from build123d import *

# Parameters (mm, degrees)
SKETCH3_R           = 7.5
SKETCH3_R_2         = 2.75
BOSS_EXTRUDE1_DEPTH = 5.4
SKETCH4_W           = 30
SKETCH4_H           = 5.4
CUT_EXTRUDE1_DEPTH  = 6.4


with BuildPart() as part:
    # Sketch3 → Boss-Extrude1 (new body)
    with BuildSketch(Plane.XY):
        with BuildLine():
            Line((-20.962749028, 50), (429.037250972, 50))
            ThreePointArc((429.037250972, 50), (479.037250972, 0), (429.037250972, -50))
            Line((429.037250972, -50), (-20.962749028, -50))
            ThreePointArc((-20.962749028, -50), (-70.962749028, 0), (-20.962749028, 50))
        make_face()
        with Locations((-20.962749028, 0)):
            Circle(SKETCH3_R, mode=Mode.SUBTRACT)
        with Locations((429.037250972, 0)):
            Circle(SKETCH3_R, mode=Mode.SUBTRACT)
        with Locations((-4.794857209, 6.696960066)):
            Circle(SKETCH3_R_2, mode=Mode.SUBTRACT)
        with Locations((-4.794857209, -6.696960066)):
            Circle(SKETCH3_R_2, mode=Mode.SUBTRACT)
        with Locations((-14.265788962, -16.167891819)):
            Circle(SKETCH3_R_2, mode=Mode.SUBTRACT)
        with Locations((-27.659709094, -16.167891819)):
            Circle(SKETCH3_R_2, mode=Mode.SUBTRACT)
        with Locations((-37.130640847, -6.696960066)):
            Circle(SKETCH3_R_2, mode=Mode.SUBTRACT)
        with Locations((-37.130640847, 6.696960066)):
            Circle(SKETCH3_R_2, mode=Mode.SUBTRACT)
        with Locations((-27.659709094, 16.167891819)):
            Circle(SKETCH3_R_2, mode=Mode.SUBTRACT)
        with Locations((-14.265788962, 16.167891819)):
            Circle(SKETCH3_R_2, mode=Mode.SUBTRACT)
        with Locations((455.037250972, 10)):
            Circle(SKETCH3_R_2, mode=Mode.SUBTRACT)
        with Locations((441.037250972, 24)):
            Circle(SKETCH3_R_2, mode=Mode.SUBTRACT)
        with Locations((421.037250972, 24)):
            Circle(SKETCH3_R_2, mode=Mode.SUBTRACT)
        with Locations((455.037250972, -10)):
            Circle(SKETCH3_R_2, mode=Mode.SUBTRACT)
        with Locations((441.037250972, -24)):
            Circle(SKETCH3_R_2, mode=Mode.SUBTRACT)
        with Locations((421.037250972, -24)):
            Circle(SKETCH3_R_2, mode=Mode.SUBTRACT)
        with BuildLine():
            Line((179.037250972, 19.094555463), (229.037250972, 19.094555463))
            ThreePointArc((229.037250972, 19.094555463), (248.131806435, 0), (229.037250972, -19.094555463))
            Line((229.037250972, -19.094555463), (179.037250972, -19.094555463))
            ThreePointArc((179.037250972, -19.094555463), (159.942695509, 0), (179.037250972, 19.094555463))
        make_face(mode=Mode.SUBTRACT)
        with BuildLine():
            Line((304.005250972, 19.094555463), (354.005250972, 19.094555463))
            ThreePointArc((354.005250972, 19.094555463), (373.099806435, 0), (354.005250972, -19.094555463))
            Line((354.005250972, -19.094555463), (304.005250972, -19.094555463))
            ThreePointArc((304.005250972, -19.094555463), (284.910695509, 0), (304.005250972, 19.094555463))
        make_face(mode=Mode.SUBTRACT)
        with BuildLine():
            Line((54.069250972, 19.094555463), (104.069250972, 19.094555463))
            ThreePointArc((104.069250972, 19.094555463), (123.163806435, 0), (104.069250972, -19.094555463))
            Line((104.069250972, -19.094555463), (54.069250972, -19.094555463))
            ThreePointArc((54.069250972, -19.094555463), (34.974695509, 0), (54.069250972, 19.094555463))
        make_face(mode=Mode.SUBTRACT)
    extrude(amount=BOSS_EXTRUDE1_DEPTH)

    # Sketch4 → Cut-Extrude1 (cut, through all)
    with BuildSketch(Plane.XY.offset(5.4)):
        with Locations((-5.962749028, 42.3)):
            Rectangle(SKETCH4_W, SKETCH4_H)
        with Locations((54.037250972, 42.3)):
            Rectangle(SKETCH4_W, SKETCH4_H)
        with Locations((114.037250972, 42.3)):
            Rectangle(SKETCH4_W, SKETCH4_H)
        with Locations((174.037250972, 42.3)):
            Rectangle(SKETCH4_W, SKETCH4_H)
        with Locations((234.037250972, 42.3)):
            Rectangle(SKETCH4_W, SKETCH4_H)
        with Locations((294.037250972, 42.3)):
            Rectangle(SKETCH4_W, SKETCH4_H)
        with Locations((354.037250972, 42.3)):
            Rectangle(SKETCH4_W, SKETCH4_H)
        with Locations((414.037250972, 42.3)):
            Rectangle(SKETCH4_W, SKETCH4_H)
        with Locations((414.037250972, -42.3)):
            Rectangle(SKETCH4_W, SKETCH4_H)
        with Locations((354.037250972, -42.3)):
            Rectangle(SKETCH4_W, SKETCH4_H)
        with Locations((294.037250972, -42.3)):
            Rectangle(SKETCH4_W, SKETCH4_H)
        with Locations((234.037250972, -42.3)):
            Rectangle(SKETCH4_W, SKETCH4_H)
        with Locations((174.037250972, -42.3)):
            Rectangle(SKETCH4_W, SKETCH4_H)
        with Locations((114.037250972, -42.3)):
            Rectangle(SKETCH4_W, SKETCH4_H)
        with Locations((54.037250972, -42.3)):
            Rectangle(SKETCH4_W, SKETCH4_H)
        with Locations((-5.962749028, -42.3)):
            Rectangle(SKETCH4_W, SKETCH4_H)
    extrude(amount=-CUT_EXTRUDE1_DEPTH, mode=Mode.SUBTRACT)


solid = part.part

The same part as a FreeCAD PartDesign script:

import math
import FreeCAD as App
import Part
import Sketcher

V = App.Vector


def add_polygon(sketch, points):
    """Adds a closed chain of lines whose ends are joined by coincident constraints."""
    first, n = sketch.GeometryCount, len(points)
    for a, b in zip(points, points[1:] + points[:1]):
        sketch.addGeometry(Part.LineSegment(App.Vector(*a, 0), App.Vector(*b, 0)), False)
    for i in range(n):
        sketch.addConstraint(Sketcher.Constraint("Coincident", first + i, 2, first + (i + 1) % n, 1))

doc = App.newDocument("Part")
body = doc.addObject("PartDesign::Body", "Body")

# Sketch on XY plane
sketch1 = body.newObject("Sketcher::SketchObject", "Sketch")
sketch1.AttachmentSupport = (doc.getObject("XY_Plane"), [""])
sketch1.MapMode = "FlatFace"
sketch1.addGeometry(Part.LineSegment(V(429, 50, 0), V(-21, 50, 0)), False)
sketch1.addGeometry(Part.ArcOfCircle(Part.Circle(V(-21, 0, 0), V(0, 0, 1), 50), math.radians(90), math.radians(270)), False)
sketch1.addGeometry(Part.LineSegment(V(-21, -50, 0), V(429, -50, 0)), False)
sketch1.addGeometry(Part.ArcOfCircle(Part.Circle(V(429, 0, 0), V(0, 0, 1), 50), math.radians(-90), math.radians(90)), False)
sketch1.addGeometry(Part.Circle(V(441, -24, 0), V(0, 0, 1), 2.8), False)
sketch1.addGeometry(Part.Circle(V(421, -24, 0), V(0, 0, 1), 2.8), False)
sketch1.addGeometry(Part.Circle(V(455, -10, 0), V(0, 0, 1), 2.8), False)
sketch1.addGeometry(Part.Circle(V(429, 0, 0), V(0, 0, 1), 7.5), False)
sketch1.addGeometry(Part.LineSegment(V(304, 19.1, 0), V(354, 19.1, 0)), False)
sketch1.addGeometry(Part.ArcOfCircle(Part.Circle(V(354, 0, 0), V(0, 0, 1), 19.1), math.radians(-90), math.radians(90)), False)
sketch1.addGeometry(Part.LineSegment(V(354, -19.1, 0), V(304, -19.1, 0)), False)
sketch1.addGeometry(Part.ArcOfCircle(Part.Circle(V(304, 0, 0), V(0, 0, 1), 19.1), math.radians(90), math.radians(270)), False)
sketch1.addGeometry(Part.Circle(V(-14.3, -16.2, 0), V(0, 0, 1), 2.8), False)
sketch1.addGeometry(Part.Circle(V(-27.7, -16.2, 0), V(0, 0, 1), 2.8), False)
sketch1.addGeometry(Part.LineSegment(V(179, 19.1, 0), V(229, 19.1, 0)), False)
sketch1.addGeometry(Part.ArcOfCircle(Part.Circle(V(229, 0, 0), V(0, 0, 1), 19.1), math.radians(-90), math.radians(90)), False)
sketch1.addGeometry(Part.LineSegment(V(229, -19.1, 0), V(179, -19.1, 0)), False)
sketch1.addGeometry(Part.ArcOfCircle(Part.Circle(V(179, 0, 0), V(0, 0, 1), 19.1), math.radians(90), math.radians(270)), False)
sketch1.addGeometry(Part.Circle(V(-4.8, -6.7, 0), V(0, 0, 1), 2.8), False)
sketch1.addGeometry(Part.Circle(V(-37.1, -6.7, 0), V(0, 0, 1), 2.8), False)
sketch1.addGeometry(Part.LineSegment(V(54.1, 19.1, 0), V(104.1, 19.1, 0)), False)
sketch1.addGeometry(Part.ArcOfCircle(Part.Circle(V(104.1, 0, 0), V(0, 0, 1), 19.1), math.radians(-90), math.radians(90)), False)
sketch1.addGeometry(Part.LineSegment(V(104.1, -19.1, 0), V(54.1, -19.1, 0)), False)
sketch1.addGeometry(Part.ArcOfCircle(Part.Circle(V(54.1, 0, 0), V(0, 0, 1), 19.1), math.radians(90), math.radians(270)), False)
sketch1.addGeometry(Part.Circle(V(-21, 0, 0), V(0, 0, 1), 7.5), False)
sketch1.addGeometry(Part.Circle(V(455, 10, 0), V(0, 0, 1), 2.8), False)
sketch1.addGeometry(Part.Circle(V(441, 24, 0), V(0, 0, 1), 2.8), False)
sketch1.addGeometry(Part.Circle(V(421, 24, 0), V(0, 0, 1), 2.8), False)
sketch1.addGeometry(Part.Circle(V(-4.8, 6.7, 0), V(0, 0, 1), 2.8), False)
sketch1.addGeometry(Part.Circle(V(-37.1, 6.7, 0), V(0, 0, 1), 2.8), False)
sketch1.addGeometry(Part.Circle(V(-14.3, 16.2, 0), V(0, 0, 1), 2.8), False)
sketch1.addGeometry(Part.Circle(V(-27.7, 16.2, 0), V(0, 0, 1), 2.8), False)
sketch1.addConstraint(Sketcher.Constraint("Tangent", 0, 2, 1, 1))
sketch1.addConstraint(Sketcher.Constraint("Tangent", 1, 2, 2, 1))
sketch1.addConstraint(Sketcher.Constraint("Tangent", 2, 2, 3, 1))
sketch1.addConstraint(Sketcher.Constraint("Tangent", 3, 2, 0, 1))
sketch1.addConstraint(Sketcher.Constraint("Tangent", 8, 2, 9, 2))
sketch1.addConstraint(Sketcher.Constraint("Tangent", 9, 1, 10, 1))
sketch1.addConstraint(Sketcher.Constraint("Tangent", 10, 2, 11, 2))
sketch1.addConstraint(Sketcher.Constraint("Tangent", 11, 1, 8, 1))
sketch1.addConstraint(Sketcher.Constraint("Tangent", 14, 2, 15, 2))
sketch1.addConstraint(Sketcher.Constraint("Tangent", 15, 1, 16, 1))
sketch1.addConstraint(Sketcher.Constraint("Tangent", 16, 2, 17, 2))
sketch1.addConstraint(Sketcher.Constraint("Tangent", 17, 1, 14, 1))
sketch1.addConstraint(Sketcher.Constraint("Tangent", 20, 2, 21, 2))
sketch1.addConstraint(Sketcher.Constraint("Tangent", 21, 1, 22, 1))
sketch1.addConstraint(Sketcher.Constraint("Tangent", 22, 2, 23, 2))
sketch1.addConstraint(Sketcher.Constraint("Tangent", 23, 1, 20, 1))
sketch1.addConstraint(Sketcher.Constraint("Horizontal", 0))
sketch1.addConstraint(Sketcher.Constraint("Horizontal", 2))
sketch1.addConstraint(Sketcher.Constraint("Horizontal", 8))
sketch1.addConstraint(Sketcher.Constraint("Horizontal", 10))
sketch1.addConstraint(Sketcher.Constraint("Horizontal", 14))
sketch1.addConstraint(Sketcher.Constraint("Horizontal", 16))
sketch1.addConstraint(Sketcher.Constraint("Horizontal", 20))
sketch1.addConstraint(Sketcher.Constraint("Horizontal", 22))
sketch1.addConstraint(Sketcher.Constraint("Coincident", 7, 3, 3, 3))
sketch1.addConstraint(Sketcher.Constraint("Coincident", 24, 3, 1, 3))
sketch1.addConstraint(Sketcher.Constraint("Equal", 4, 5))
sketch1.addConstraint(Sketcher.Constraint("Equal", 5, 6))
sketch1.addConstraint(Sketcher.Constraint("Equal", 6, 12))
sketch1.addConstraint(Sketcher.Constraint("Equal", 12, 13))
sketch1.addConstraint(Sketcher.Constraint("Equal", 11, 15))
sketch1.addConstraint(Sketcher.Constraint("Equal", 13, 18))
sketch1.addConstraint(Sketcher.Constraint("Equal", 18, 19))
sketch1.addConstraint(Sketcher.Constraint("Equal", 17, 21))
sketch1.addConstraint(Sketcher.Constraint("Equal", 7, 24))
sketch1.addConstraint(Sketcher.Constraint("Equal", 19, 25))
sketch1.addConstraint(Sketcher.Constraint("Equal", 25, 26))
sketch1.addConstraint(Sketcher.Constraint("Equal", 26, 27))
sketch1.addConstraint(Sketcher.Constraint("Equal", 27, 28))
sketch1.addConstraint(Sketcher.Constraint("Equal", 28, 29))
sketch1.addConstraint(Sketcher.Constraint("Equal", 29, 30))
sketch1.addConstraint(Sketcher.Constraint("Equal", 30, 31))
sketch1.addConstraint(Sketcher.Constraint("Symmetric", 6, 3, 25, 3, -1))
sketch1.addConstraint(Sketcher.Constraint("Symmetric", 4, 3, 26, 3, -1))
sketch1.addConstraint(Sketcher.Constraint("Symmetric", 5, 3, 27, 3, -1))
sketch1.addConstraint(Sketcher.Constraint("Symmetric", 18, 3, 28, 3, -1))
sketch1.addConstraint(Sketcher.Constraint("Symmetric", 19, 3, 29, 3, -1))
sketch1.addConstraint(Sketcher.Constraint("Symmetric", 12, 3, 30, 3, -1))
sketch1.addConstraint(Sketcher.Constraint("Symmetric", 13, 3, 31, 3, -1))
sketch1.addConstraint(Sketcher.Constraint("PointOnObject", 1, 3, -1))
sketch1.addConstraint(Sketcher.Constraint("PointOnObject", 9, 3, -1))
sketch1.addConstraint(Sketcher.Constraint("PointOnObject", 15, 3, -1))
sketch1.addConstraint(Sketcher.Constraint("PointOnObject", 21, 3, -1))
sketch1.addConstraint(Sketcher.Constraint("Horizontal", 4, 3, 5, 3))
sketch1.addConstraint(Sketcher.Constraint("Horizontal", 12, 3, 13, 3))
sketch1.addConstraint(Sketcher.Constraint("Horizontal", 18, 3, 19, 3))
sketch1.addConstraint(Sketcher.Constraint("Equal", 10, 14))
sketch1.addConstraint(Sketcher.Constraint("Equal", 16, 20))
sketch1.addConstraint(Sketcher.Constraint("Diameter", 7, 15.0))
sketch1.addConstraint(Sketcher.Constraint("Radius", 1, 50.0))
sketch1.addConstraint(Sketcher.Constraint("Diameter", 4, 5.5))
sketch1.addConstraint(Sketcher.Constraint("DistanceX", 0, 2, 0, 1, 450.0))
sketch1.addConstraint(Sketcher.Constraint("DistanceX", 8, 1, 8, 2, 50.0))
sketch1.addConstraint(Sketcher.Constraint("DistanceY", 4, 3, -1, 1, 24.0))
sketch1.addConstraint(Sketcher.Constraint("DistanceY", 6, 3, -1, 1, 10.0))
sketch1.addConstraint(Sketcher.Constraint("DistanceX", 3, 3, 4, 3, 12.0))
sketch1.addConstraint(Sketcher.Constraint("DistanceX", 5, 3, 4, 3, 20.0))
sketch1.addConstraint(Sketcher.Constraint("DistanceX", 4, 3, 6, 3, 14.0))
sketch1.addConstraint(Sketcher.Constraint("DistanceX", 15, 3, 5, 3, 192.0))
sketch1.addConstraint(Sketcher.Constraint("Radius", 9, 19.094555))
sketch1.addConstraint(Sketcher.Constraint("DistanceX", 9, 3, 5, 3, 67.032))
sketch1.addConstraint(Sketcher.Constraint("DistanceX", 21, 3, 17, 3, 74.968))
sketch1.addConstraint(Sketcher.Constraint("DistanceX", 1, 3, -1, 1, 20.962749))
sketch1.addConstraint(Sketcher.Constraint("DistanceX", 12, 3, -1, 1, 14.265789))
sketch1.addConstraint(Sketcher.Constraint("DistanceY", 12, 3, -1, 1, 16.167892))
sketch1.addConstraint(Sketcher.Constraint("DistanceX", 13, 3, -1, 1, 27.659709))
sketch1.addConstraint(Sketcher.Constraint("DistanceY", 18, 3, -1, 1, 6.69696))
sketch1.addConstraint(Sketcher.Constraint("DistanceX", 19, 3, -1, 1, 37.130641))
sketch1.addConstraint(Sketcher.Constraint("DistanceX", 12, 3, 18, 3, 9.470932))
pad1 = body.newObject("PartDesign::Pad", "Pad")
pad1.Profile = sketch1
pad1.Length = 5.4

# Sketch on XY plane
sketch2 = body.newObject("Sketcher::SketchObject", "Sketch001")
sketch2.AttachmentSupport = (doc.getObject("XY_Plane"), [""])
sketch2.MapMode = "FlatFace"
sketch2.AttachmentOffset = App.Placement(V(0, 0, 5.4), App.Rotation())
add_polygon(sketch2, [(-21, 45), (-21, 40), (9, 40), (9, 45)])  # lines 0-3
add_polygon(sketch2, [(39, 45), (39, 40), (69, 40), (69, 45)])  # lines 4-7
add_polygon(sketch2, [(99, 45), (99, 40), (129, 40), (129, 45)])  # lines 8-11
add_polygon(sketch2, [(159, 45), (159, 40), (189, 40), (189, 45)])  # lines 12-15
add_polygon(sketch2, [(219, 45), (219, 40), (249, 40), (249, 45)])  # lines 16-19
add_polygon(sketch2, [(279, 45), (279, 40), (309, 40), (309, 45)])  # lines 20-23
add_polygon(sketch2, [(339, 45), (339, 40), (369, 40), (369, 45)])  # lines 24-27
add_polygon(sketch2, [(399, 45), (399, 40), (429, 40), (429, 45)])  # lines 28-31
add_polygon(sketch2, [(399, -40), (399, -45), (429, -45), (429, -40)])  # lines 32-35
add_polygon(sketch2, [(339, -40), (339, -45), (369, -45), (369, -40)])  # lines 36-39
add_polygon(sketch2, [(279, -40), (279, -45), (309, -45), (309, -40)])  # lines 40-43
add_polygon(sketch2, [(219, -40), (219, -45), (249, -45), (249, -40)])  # lines 44-47
add_polygon(sketch2, [(159, -40), (159, -45), (189, -45), (189, -40)])  # lines 48-51
add_polygon(sketch2, [(99, -40), (99, -45), (129, -45), (129, -40)])  # lines 52-55
add_polygon(sketch2, [(39, -40), (39, -45), (69, -45), (69, -40)])  # lines 56-59
add_polygon(sketch2, [(-21, -40), (-21, -45), (9, -45), (9, -40)])  # lines 60-63
sketch2.addConstraint(Sketcher.Constraint("Vertical", 0))
sketch2.addConstraint(Sketcher.Constraint("Horizontal", 1))
sketch2.addConstraint(Sketcher.Constraint("Vertical", 2))
sketch2.addConstraint(Sketcher.Constraint("Horizontal", 3))
sketch2.addConstraint(Sketcher.Constraint("Vertical", 4))
sketch2.addConstraint(Sketcher.Constraint("Horizontal", 5))
sketch2.addConstraint(Sketcher.Constraint("Vertical", 6))
sketch2.addConstraint(Sketcher.Constraint("Horizontal", 7))
sketch2.addConstraint(Sketcher.Constraint("Vertical", 8))
sketch2.addConstraint(Sketcher.Constraint("Horizontal", 9))
sketch2.addConstraint(Sketcher.Constraint("Vertical", 10))
sketch2.addConstraint(Sketcher.Constraint("Horizontal", 11))
sketch2.addConstraint(Sketcher.Constraint("Vertical", 12))
sketch2.addConstraint(Sketcher.Constraint("Horizontal", 13))
sketch2.addConstraint(Sketcher.Constraint("Vertical", 14))
sketch2.addConstraint(Sketcher.Constraint("Horizontal", 15))
sketch2.addConstraint(Sketcher.Constraint("Vertical", 16))
sketch2.addConstraint(Sketcher.Constraint("Horizontal", 17))
sketch2.addConstraint(Sketcher.Constraint("Vertical", 18))
sketch2.addConstraint(Sketcher.Constraint("Horizontal", 19))
sketch2.addConstraint(Sketcher.Constraint("Vertical", 20))
sketch2.addConstraint(Sketcher.Constraint("Horizontal", 21))
sketch2.addConstraint(Sketcher.Constraint("Vertical", 22))
sketch2.addConstraint(Sketcher.Constraint("Horizontal", 23))
sketch2.addConstraint(Sketcher.Constraint("Vertical", 24))
sketch2.addConstraint(Sketcher.Constraint("Horizontal", 25))
sketch2.addConstraint(Sketcher.Constraint("Vertical", 26))
sketch2.addConstraint(Sketcher.Constraint("Horizontal", 27))
sketch2.addConstraint(Sketcher.Constraint("Vertical", 28))
sketch2.addConstraint(Sketcher.Constraint("Horizontal", 29))
sketch2.addConstraint(Sketcher.Constraint("Vertical", 30))
sketch2.addConstraint(Sketcher.Constraint("Horizontal", 31))
sketch2.addConstraint(Sketcher.Constraint("Vertical", 32))
sketch2.addConstraint(Sketcher.Constraint("Horizontal", 33))
sketch2.addConstraint(Sketcher.Constraint("Vertical", 34))
sketch2.addConstraint(Sketcher.Constraint("Horizontal", 35))
sketch2.addConstraint(Sketcher.Constraint("Vertical", 36))
sketch2.addConstraint(Sketcher.Constraint("Horizontal", 37))
sketch2.addConstraint(Sketcher.Constraint("Vertical", 38))
sketch2.addConstraint(Sketcher.Constraint("Horizontal", 39))
sketch2.addConstraint(Sketcher.Constraint("Vertical", 40))
sketch2.addConstraint(Sketcher.Constraint("Horizontal", 41))
sketch2.addConstraint(Sketcher.Constraint("Vertical", 42))
sketch2.addConstraint(Sketcher.Constraint("Horizontal", 43))
sketch2.addConstraint(Sketcher.Constraint("Vertical", 44))
sketch2.addConstraint(Sketcher.Constraint("Horizontal", 45))
sketch2.addConstraint(Sketcher.Constraint("Vertical", 46))
sketch2.addConstraint(Sketcher.Constraint("Horizontal", 47))
sketch2.addConstraint(Sketcher.Constraint("Vertical", 48))
sketch2.addConstraint(Sketcher.Constraint("Horizontal", 49))
sketch2.addConstraint(Sketcher.Constraint("Vertical", 50))
sketch2.addConstraint(Sketcher.Constraint("Horizontal", 51))
sketch2.addConstraint(Sketcher.Constraint("Vertical", 52))
sketch2.addConstraint(Sketcher.Constraint("Horizontal", 53))
sketch2.addConstraint(Sketcher.Constraint("Vertical", 54))
sketch2.addConstraint(Sketcher.Constraint("Horizontal", 55))
sketch2.addConstraint(Sketcher.Constraint("Vertical", 56))
sketch2.addConstraint(Sketcher.Constraint("Horizontal", 57))
sketch2.addConstraint(Sketcher.Constraint("Vertical", 58))
sketch2.addConstraint(Sketcher.Constraint("Horizontal", 59))
sketch2.addConstraint(Sketcher.Constraint("Vertical", 60))
sketch2.addConstraint(Sketcher.Constraint("Horizontal", 61))
sketch2.addConstraint(Sketcher.Constraint("Vertical", 62))
sketch2.addConstraint(Sketcher.Constraint("Horizontal", 63))
sketch2.addConstraint(Sketcher.Constraint("Symmetric", 31, 2, 32, 2, -1))
sketch2.addConstraint(Sketcher.Constraint("Symmetric", 29, 2, 34, 2, -1))
sketch2.addConstraint(Sketcher.Constraint("Symmetric", 27, 2, 36, 2, -1))
sketch2.addConstraint(Sketcher.Constraint("Symmetric", 25, 2, 38, 2, -1))
sketch2.addConstraint(Sketcher.Constraint("Symmetric", 23, 2, 40, 2, -1))
sketch2.addConstraint(Sketcher.Constraint("Symmetric", 21, 2, 42, 2, -1))
sketch2.addConstraint(Sketcher.Constraint("Symmetric", 19, 2, 44, 2, -1))
sketch2.addConstraint(Sketcher.Constraint("Symmetric", 17, 2, 46, 2, -1))
sketch2.addConstraint(Sketcher.Constraint("Symmetric", 15, 2, 48, 2, -1))
sketch2.addConstraint(Sketcher.Constraint("Symmetric", 13, 2, 50, 2, -1))
sketch2.addConstraint(Sketcher.Constraint("Symmetric", 11, 2, 52, 2, -1))
sketch2.addConstraint(Sketcher.Constraint("Symmetric", 9, 2, 54, 2, -1))
sketch2.addConstraint(Sketcher.Constraint("Symmetric", 7, 2, 56, 2, -1))
sketch2.addConstraint(Sketcher.Constraint("Symmetric", 5, 2, 58, 2, -1))
sketch2.addConstraint(Sketcher.Constraint("Symmetric", 3, 2, 60, 2, -1))
sketch2.addConstraint(Sketcher.Constraint("Symmetric", 1, 2, 62, 2, -1))
sketch2.addConstraint(Sketcher.Constraint("Horizontal", 1, 2, 4, 2))
sketch2.addConstraint(Sketcher.Constraint("Horizontal", 3, 2, 6, 2))
sketch2.addConstraint(Sketcher.Constraint("Horizontal", 5, 2, 8, 2))
sketch2.addConstraint(Sketcher.Constraint("Horizontal", 7, 2, 10, 2))
sketch2.addConstraint(Sketcher.Constraint("Horizontal", 9, 2, 12, 2))
sketch2.addConstraint(Sketcher.Constraint("Horizontal", 11, 2, 14, 2))
sketch2.addConstraint(Sketcher.Constraint("Horizontal", 13, 2, 16, 2))
sketch2.addConstraint(Sketcher.Constraint("Horizontal", 15, 2, 18, 2))
sketch2.addConstraint(Sketcher.Constraint("Horizontal", 17, 2, 20, 2))
sketch2.addConstraint(Sketcher.Constraint("Horizontal", 19, 2, 22, 2))
sketch2.addConstraint(Sketcher.Constraint("Horizontal", 21, 2, 24, 2))
sketch2.addConstraint(Sketcher.Constraint("Horizontal", 23, 2, 26, 2))
sketch2.addConstraint(Sketcher.Constraint("Horizontal", 25, 2, 28, 2))
sketch2.addConstraint(Sketcher.Constraint("Horizontal", 27, 2, 30, 2))
sketch2.addConstraint(Sketcher.Constraint("Equal", 3, 5))
sketch2.addConstraint(Sketcher.Constraint("Equal", 7, 9))
sketch2.addConstraint(Sketcher.Constraint("Equal", 11, 13))
sketch2.addConstraint(Sketcher.Constraint("Equal", 15, 17))
sketch2.addConstraint(Sketcher.Constraint("Equal", 19, 21))
sketch2.addConstraint(Sketcher.Constraint("Equal", 23, 25))
sketch2.addConstraint(Sketcher.Constraint("Equal", 27, 29))
sketch2.addConstraint(Sketcher.Constraint("DistanceX", 1, 1, 1, 2, 30.0))
sketch2.addConstraint(Sketcher.Constraint("DistanceY", 0, 2, 0, 1, 5.4))
sketch2.addConstraint(Sketcher.Constraint("DistanceY", -1, 1, 2, 2, 45.0))
sketch2.addConstraint(Sketcher.Constraint("DistanceX", 0, 2, -1, 1, 20.962749))
sketch2.addConstraint(Sketcher.Constraint("DistanceX", -1, 1, 4, 2, 39.037251))
sketch2.addConstraint(Sketcher.Constraint("DistanceX", -1, 1, 8, 2, 99.037251))
sketch2.addConstraint(Sketcher.Constraint("DistanceX", -1, 1, 12, 2, 159.037251))
sketch2.addConstraint(Sketcher.Constraint("DistanceX", -1, 1, 16, 2, 219.037251))
sketch2.addConstraint(Sketcher.Constraint("DistanceX", -1, 1, 20, 2, 279.037251))
sketch2.addConstraint(Sketcher.Constraint("DistanceX", -1, 1, 24, 2, 339.037251))
sketch2.addConstraint(Sketcher.Constraint("DistanceX", -1, 1, 28, 2, 399.037251))
pocket1 = body.newObject("PartDesign::Pocket", "Pocket")
pocket1.Profile = sketch2
pocket1.Type = "ThroughAll"

doc.recompute()
